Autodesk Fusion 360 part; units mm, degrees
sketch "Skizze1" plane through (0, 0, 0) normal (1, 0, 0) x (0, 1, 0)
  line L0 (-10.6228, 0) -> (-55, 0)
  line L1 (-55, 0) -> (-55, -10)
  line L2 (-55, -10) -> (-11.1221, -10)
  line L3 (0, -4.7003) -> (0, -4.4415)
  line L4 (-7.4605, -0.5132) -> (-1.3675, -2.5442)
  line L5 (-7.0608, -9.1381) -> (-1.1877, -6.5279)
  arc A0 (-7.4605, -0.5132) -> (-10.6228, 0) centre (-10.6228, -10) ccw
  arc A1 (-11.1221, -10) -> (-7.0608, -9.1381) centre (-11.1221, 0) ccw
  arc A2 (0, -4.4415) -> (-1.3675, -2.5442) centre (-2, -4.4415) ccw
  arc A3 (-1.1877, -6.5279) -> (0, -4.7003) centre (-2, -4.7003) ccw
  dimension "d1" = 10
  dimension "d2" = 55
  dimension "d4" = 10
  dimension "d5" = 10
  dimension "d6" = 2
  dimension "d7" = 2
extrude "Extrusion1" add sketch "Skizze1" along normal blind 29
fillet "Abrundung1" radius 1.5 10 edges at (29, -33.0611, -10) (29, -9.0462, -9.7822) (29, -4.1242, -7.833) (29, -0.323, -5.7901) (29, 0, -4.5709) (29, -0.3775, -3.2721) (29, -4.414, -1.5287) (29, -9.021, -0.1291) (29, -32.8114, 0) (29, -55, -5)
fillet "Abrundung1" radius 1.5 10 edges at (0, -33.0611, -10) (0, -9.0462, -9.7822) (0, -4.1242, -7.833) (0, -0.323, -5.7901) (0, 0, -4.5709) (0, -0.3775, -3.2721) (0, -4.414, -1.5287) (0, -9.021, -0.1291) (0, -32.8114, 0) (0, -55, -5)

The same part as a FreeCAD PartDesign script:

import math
import FreeCAD as App
import Part
import Sketcher

V = App.Vector
Q = App.Units.Quantity


def edges_at(feature, points):
    """Names of the edges that pass closest to the given points."""
    edges = feature.Shape.Edges
    near = lambda p: min(range(len(edges)), key=lambda i: edges[i].distToShape(Part.Vertex(*p))[0])
    return sorted({f"Edge{near(p) + 1}" for p in points})

doc = App.newDocument("Part")
params = doc.addObject("Spreadsheet::Sheet", "Params")
for row, (alias, value) in enumerate([
    ("sketch1_radius", "10 mm"),
    ("sketch1_radius2", "2 mm"),
    ("pad1_length", "29 mm"),
    ("fillet_radius", "1.5 mm"),
    ("fillet2_radius", "1.5 mm"),
], start=1):
    params.set(f"A{row}", alias)
    params.set(f"B{row}", "=" + value)
    params.setAlias(f"B{row}", alias)

body = doc.addObject("PartDesign::Body", "Body")

sketch1 = body.newObject("Sketcher::SketchObject", "Sketch")
sketch1.AttachmentSupport = (doc.getObject("YZ_Plane"), [""])
sketch1.MapMode = "FlatFace"
sketch1.addGeometry(Part.ArcOfCircle(Part.Circle(V(-10.6228, -10, 0), V(0, 0, 1), 9.999976), math.radians(71.56487), math.radians(90)), False)
sketch1.addGeometry(Part.LineSegment(V(-10.6228, 0, 0), V(-55, 0, 0)), False)
sketch1.addGeometry(Part.LineSegment(V(-55, 0, 0), V(-55, -10, 0)), False)
sketch1.addGeometry(Part.LineSegment(V(-55, -10, 0), V(-11.1221, -10, 0)), False)
sketch1.addGeometry(Part.ArcOfCircle(Part.Circle(V(-11.121983, -0.001114, 0), V(0, 0, 1), 9.998886), math.radians(-90.00067), math.radians(-66.035938)), False)
sketch1.addGeometry(Part.LineSegment(V(-7.0608, -9.1381, 0), V(-1.1877, -6.5279, 0)), False)
sketch1.addGeometry(Part.ArcOfCircle(Part.Circle(V(-2, -4.7003, 0), V(0, 0, 1), 1.999988), math.radians(-66.036638), math.radians(0)), False)
sketch1.addGeometry(Part.LineSegment(V(0, -4.7003, 0), V(0, -4.4415, 0)), False)
sketch1.addGeometry(Part.ArcOfCircle(Part.Circle(V(-2, -4.4415, 0), V(0, 0, 1), 2), math.radians(0), math.radians(71.563239)), False)
sketch1.addGeometry(Part.LineSegment(V(-1.3675, -2.5442, 0), V(-7.4605, -0.5132, 0)), False)
sketch1.addConstraint(Sketcher.Constraint("Tangent", 0, 2, 1, 1))
sketch1.addConstraint(Sketcher.Constraint("Coincident", 1, 2, 2, 1))
sketch1.addConstraint(Sketcher.Constraint("Coincident", 2, 2, 3, 1))
sketch1.addConstraint(Sketcher.Constraint("Tangent", 3, 2, 4, 1))
sketch1.addConstraint(Sketcher.Constraint("Tangent", 4, 2, 5, 1))
sketch1.addConstraint(Sketcher.Constraint("Tangent", 5, 2, 6, 1))
sketch1.addConstraint(Sketcher.Constraint("Tangent", 6, 2, 7, 1))
sketch1.addConstraint(Sketcher.Constraint("Tangent", 7, 2, 8, 1))
sketch1.addConstraint(Sketcher.Constraint("Tangent", 8, 2, 9, 1))
sketch1.addConstraint(Sketcher.Constraint("Tangent", 9, 2, 0, 1))
sketch1.addConstraint(Sketcher.Constraint("Horizontal", 1))
sketch1.addConstraint(Sketcher.Constraint("Vertical", 2))
sketch1.addConstraint(Sketcher.Constraint("Horizontal", 3))
sketch1.addConstraint(Sketcher.Constraint("Vertical", 7))
sketch1.addConstraint(Sketcher.Constraint("Equal", 6, 8))
sketch1.addConstraint(Sketcher.Constraint("PointOnObject", 0, 2, -1))
sketch1.addConstraint(Sketcher.Constraint("PointOnObject", 6, 2, -2))
sketch1.addConstraint(Sketcher.Constraint("Horizontal", 0, 3, 2, 2))
sketch1.addConstraint(Sketcher.Constraint("Radius", 0, Q("10 mm")))
sketch1.addConstraint(Sketcher.Constraint("Radius", 6, Q("2 mm")))
sketch1.addConstraint(Sketcher.Constraint("DistanceX", 1, 2, -1, 1, Q("55 mm")))
sketch1.addConstraint(Sketcher.Constraint("Radius", 4, Q("9.999 mm")))
sketch1.addConstraint(Sketcher.Constraint("DistanceX", 3, 1, 3, 2, Q("43.878 mm")))
sketch1.addConstraint(Sketcher.Constraint("Distance", 5, Q("6.427 mm")))
sketch1.addConstraint(Sketcher.Constraint("DistanceX", 1, 2, 1, 1, Q("44.3772 mm")))
sketch1.addConstraint(Sketcher.Constraint("DistanceY", 7, 1, 7, 2, Q("0.2588 mm")))
sketch1.setExpression("Constraints[18]", "Params.sketch1_radius")
sketch1.setExpression("Constraints[19]", "Params.sketch1_radius2")
pad1 = body.newObject("PartDesign::Pad", "Pad")
pad1.Profile = sketch1
pad1.setExpression("Length", "Params.pad1_length")
doc.recompute()

fillet = body.newObject("PartDesign::Fillet", "Fillet")
fillet.Base = (pad1, edges_at(pad1, [
    (29, -33.061, -10),
    (29, -9.046, -9.782),
    (29, -4.124, -7.833),
    (29, -0.323, -5.79),
    (29, 0, -4.571),
    (29, -0.378, -3.272),
    (29, -4.414, -1.529),
    (29, -9.021, -0.129),
    (29, -32.811, 0),
    (29, -55, -5),
]))
fillet.setExpression("Radius", "Params.fillet_radius")
doc.recompute()

fillet2 = body.newObject("PartDesign::Fillet", "Fillet001")
fillet2.Base = (fillet, edges_at(fillet, [
    (0, -33.061, -10),
    (0, -9.046, -9.782),
    (0, -4.124, -7.833),
    (0, -0.323, -5.79),
    (0, 0, -4.571),
    (0, -0.378, -3.272),
    (0, -4.414, -1.529),
    (0, -9.021, -0.129),
    (0, -32.811, 0),
    (0, -55, -5),
]))
fillet2.setExpression("Radius", "Params.fillet2_radius")

doc.recompute()
